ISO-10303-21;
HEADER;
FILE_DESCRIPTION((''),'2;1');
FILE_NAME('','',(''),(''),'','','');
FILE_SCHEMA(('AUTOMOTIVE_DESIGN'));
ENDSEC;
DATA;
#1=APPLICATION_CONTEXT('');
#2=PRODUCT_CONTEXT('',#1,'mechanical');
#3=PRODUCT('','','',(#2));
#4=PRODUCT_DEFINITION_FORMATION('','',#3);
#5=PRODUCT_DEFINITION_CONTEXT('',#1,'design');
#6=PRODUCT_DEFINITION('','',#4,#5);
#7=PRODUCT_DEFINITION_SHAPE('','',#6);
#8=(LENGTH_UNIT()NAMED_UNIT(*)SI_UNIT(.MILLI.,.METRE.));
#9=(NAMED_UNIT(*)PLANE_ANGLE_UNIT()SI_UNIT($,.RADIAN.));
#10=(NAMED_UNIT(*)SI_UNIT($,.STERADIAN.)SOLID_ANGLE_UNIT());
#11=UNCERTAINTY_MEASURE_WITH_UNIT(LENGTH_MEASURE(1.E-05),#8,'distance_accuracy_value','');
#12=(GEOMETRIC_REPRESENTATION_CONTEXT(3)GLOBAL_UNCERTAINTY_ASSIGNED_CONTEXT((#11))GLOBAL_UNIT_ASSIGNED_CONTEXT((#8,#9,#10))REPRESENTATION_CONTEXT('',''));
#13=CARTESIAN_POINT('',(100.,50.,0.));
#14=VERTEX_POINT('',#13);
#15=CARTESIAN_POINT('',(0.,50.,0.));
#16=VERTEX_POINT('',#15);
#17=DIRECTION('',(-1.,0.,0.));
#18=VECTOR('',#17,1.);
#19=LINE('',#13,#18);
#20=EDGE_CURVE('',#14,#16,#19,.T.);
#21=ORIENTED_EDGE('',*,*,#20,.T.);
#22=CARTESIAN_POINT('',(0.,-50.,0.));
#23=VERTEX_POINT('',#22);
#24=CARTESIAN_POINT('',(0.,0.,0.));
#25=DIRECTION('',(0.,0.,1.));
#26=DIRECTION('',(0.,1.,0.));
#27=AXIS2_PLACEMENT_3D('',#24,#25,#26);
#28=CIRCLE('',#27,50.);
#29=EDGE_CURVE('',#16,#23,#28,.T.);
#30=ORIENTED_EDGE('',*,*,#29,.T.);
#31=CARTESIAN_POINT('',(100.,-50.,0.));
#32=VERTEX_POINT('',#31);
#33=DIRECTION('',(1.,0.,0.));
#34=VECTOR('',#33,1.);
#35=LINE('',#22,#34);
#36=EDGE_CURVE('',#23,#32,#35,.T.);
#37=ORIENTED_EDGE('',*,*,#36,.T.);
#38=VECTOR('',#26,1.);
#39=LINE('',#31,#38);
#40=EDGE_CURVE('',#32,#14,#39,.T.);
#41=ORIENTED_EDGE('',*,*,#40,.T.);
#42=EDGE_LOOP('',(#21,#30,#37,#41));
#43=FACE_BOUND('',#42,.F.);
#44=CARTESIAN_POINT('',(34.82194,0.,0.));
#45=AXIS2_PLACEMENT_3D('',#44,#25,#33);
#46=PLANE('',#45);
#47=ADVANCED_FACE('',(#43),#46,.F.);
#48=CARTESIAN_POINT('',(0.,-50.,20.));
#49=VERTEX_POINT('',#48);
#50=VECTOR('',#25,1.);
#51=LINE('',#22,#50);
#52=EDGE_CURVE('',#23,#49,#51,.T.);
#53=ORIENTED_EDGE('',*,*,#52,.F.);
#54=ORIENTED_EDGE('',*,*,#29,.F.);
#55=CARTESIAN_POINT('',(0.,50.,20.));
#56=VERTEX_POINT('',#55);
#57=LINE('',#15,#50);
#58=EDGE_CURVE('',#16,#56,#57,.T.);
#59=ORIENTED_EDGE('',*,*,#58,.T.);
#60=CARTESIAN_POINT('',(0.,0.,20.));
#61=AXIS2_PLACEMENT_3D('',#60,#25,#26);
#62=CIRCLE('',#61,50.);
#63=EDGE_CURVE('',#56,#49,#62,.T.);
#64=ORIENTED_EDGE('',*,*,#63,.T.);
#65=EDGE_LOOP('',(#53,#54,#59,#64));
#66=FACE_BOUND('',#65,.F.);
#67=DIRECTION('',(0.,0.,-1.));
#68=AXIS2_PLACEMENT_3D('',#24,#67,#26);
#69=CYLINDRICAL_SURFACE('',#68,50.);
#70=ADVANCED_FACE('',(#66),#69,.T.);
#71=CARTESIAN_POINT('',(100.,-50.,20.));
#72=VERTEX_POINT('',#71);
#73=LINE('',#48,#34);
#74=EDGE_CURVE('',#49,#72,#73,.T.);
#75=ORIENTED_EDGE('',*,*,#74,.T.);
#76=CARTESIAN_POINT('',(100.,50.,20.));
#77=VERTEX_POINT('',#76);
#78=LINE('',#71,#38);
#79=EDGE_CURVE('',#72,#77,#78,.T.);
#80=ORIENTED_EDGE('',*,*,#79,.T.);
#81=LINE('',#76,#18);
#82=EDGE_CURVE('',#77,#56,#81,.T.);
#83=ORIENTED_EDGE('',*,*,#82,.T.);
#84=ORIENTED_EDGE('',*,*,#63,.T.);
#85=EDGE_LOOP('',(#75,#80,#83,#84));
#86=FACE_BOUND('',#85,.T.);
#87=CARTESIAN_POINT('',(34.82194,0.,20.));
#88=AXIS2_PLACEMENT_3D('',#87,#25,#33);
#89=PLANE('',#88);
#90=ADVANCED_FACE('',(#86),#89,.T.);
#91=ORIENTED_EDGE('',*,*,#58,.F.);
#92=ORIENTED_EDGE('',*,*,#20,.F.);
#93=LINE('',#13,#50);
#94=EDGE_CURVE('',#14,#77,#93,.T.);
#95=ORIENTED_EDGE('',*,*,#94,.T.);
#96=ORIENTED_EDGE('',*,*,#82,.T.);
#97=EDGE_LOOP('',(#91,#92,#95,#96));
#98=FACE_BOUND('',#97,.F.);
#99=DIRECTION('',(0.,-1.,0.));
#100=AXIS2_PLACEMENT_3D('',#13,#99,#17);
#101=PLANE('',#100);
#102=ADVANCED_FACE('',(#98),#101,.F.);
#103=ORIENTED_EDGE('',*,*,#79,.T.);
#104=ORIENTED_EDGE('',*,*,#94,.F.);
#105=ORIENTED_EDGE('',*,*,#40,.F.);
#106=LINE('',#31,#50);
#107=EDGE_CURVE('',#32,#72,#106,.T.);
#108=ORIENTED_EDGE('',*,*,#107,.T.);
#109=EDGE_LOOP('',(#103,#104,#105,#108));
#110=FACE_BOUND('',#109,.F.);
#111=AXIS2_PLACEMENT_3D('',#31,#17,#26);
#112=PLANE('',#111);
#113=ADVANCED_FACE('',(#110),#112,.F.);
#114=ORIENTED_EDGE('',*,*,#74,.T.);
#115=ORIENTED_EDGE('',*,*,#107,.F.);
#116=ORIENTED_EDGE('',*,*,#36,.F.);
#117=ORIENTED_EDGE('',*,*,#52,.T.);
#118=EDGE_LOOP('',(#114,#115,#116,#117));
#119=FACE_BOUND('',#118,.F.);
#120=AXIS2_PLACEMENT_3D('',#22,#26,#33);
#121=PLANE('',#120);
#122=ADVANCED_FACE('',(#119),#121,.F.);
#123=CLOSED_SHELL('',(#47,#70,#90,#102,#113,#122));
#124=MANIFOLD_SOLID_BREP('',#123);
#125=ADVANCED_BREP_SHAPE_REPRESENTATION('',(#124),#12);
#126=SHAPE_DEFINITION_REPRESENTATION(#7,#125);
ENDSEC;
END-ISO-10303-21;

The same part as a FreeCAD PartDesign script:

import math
import FreeCAD as App
import Part
import Sketcher

V = App.Vector

doc = App.newDocument("Part")
body = doc.addObject("PartDesign::Body", "Body")

sketch1 = body.newObject("Sketcher::SketchObject", "Sketch")
sketch1.AttachmentSupport = (doc.getObject("XY_Plane"), [""])
sketch1.MapMode = "FlatFace"
sketch1.addGeometry(Part.LineSegment(V(100, 50, 0), V(0, 50, 0)), False)
sketch1.addGeometry(Part.ArcOfCircle(Part.Circle(V(0, 0, 0), V(0, 0, 1), 50), math.radians(90), math.radians(270)), False)
sketch1.addGeometry(Part.LineSegment(V(0, -50, 0), V(100, -50, 0)), False)
sketch1.addGeometry(Part.LineSegment(V(100, -50, 0), V(100, 50, 0)), False)
sketch1.addConstraint(Sketcher.Constraint("Tangent", 0, 2, 1, 1))
sketch1.addConstraint(Sketcher.Constraint("Tangent", 1, 2, 2, 1))
sketch1.addConstraint(Sketcher.Constraint("Coincident", 2, 2, 3, 1))
sketch1.addConstraint(Sketcher.Constraint("Coincident", 3, 2, 0, 1))
sketch1.addConstraint(Sketcher.Constraint("Horizontal", 0))
sketch1.addConstraint(Sketcher.Constraint("Horizontal", 2))
sketch1.addConstraint(Sketcher.Constraint("Vertical", 3))
sketch1.addConstraint(Sketcher.Constraint("Coincident", 1, 3, -1, 1))
sketch1.addConstraint(Sketcher.Constraint("Equal", 2, 3))
sketch1.addConstraint(Sketcher.Constraint("Radius", 1, 50.0))
pad1 = body.newObject("PartDesign::Pad", "Pad")
pad1.Profile = sketch1
pad1.Length = 20

doc.recompute()
